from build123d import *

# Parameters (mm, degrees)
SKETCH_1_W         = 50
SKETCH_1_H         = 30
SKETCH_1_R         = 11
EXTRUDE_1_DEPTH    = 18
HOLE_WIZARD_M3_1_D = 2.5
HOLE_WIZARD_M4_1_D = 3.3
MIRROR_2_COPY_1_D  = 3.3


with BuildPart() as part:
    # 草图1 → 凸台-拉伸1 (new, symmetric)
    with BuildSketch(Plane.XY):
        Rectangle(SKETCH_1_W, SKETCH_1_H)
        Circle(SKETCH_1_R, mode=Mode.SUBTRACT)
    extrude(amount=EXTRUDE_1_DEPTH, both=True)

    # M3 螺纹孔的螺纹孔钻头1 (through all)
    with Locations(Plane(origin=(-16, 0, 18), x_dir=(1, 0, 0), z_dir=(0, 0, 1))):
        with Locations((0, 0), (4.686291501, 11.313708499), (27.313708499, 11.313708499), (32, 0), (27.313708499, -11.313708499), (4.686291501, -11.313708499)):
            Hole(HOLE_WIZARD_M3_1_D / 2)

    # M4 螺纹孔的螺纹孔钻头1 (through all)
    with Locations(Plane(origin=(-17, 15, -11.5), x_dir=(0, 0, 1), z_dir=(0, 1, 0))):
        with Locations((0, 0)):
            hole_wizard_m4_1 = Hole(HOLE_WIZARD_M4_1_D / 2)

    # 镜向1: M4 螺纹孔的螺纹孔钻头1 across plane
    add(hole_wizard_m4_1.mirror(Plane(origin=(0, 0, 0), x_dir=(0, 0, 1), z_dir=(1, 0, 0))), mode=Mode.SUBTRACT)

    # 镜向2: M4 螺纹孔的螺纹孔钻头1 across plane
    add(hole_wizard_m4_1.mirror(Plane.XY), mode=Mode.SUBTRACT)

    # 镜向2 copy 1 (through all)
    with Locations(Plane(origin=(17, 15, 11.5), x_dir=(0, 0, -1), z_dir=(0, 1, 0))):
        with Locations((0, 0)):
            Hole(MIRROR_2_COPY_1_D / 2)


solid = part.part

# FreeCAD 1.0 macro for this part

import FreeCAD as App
import Part
import Sketcher

V = App.Vector
Q = App.Units.Quantity

doc = App.newDocument("Part")
params = doc.addObject("Spreadsheet::Sheet", "Params")
for row, (alias, value) in enumerate([
    ("sketch1_diameter", "22 mm"),
    ("sketch1_width", "50 mm"),
    ("sketch1_height", "30 mm"),
    ("pad1_length", "36 mm"),
    ("sketch2_diameter", "2.5 mm"),
    ("hole_diameter", "2.5 mm"),
    ("sketch3_diameter", "3.3 mm"),
    ("hole2_diameter", "3.3 mm"),
    ("sketch4_diameter", "3.3 mm"),
    ("hole3_diameter", "3.3 mm"),
], start=1):
    params.set(f"A{row}", alias)
    params.set(f"B{row}", "=" + value)
    params.setAlias(f"B{row}", alias)

body = doc.addObject("PartDesign::Body", "Body")

# Sketch on XY plane
sketch1 = doc.addObject("Sketcher::SketchObject", "Sketch")
body.addObject(sketch1)
sketch1.AttachmentSupport = (doc.XY_Plane, [""])
sketch1.MapMode = "FlatFace"
sketch1.addGeometry([
    Part.LineSegment(V(-25, 15, 0), V(-25, -15, 0)),  # 0
    Part.LineSegment(V(-25, -15, 0), V(25, -15, 0)),  # 1
    Part.LineSegment(V(25, -15, 0), V(25, 15, 0)),  # 2
    Part.LineSegment(V(25, 15, 0), V(-25, 15, 0)),  # 3
    Part.Circle(V(0, 0, 0), V(0, 0, 1), 11),  # 4
], False)
sketch1.addConstraint([
    Sketcher.Constraint("Coincident", 0, 2, 1, 1),
    Sketcher.Constraint("Coincident", 1, 2, 2, 1),
    Sketcher.Constraint("Coincident", 2, 2, 3, 1),
    Sketcher.Constraint("Coincident", 3, 2, 0, 1),
    Sketcher.Constraint("Vertical", 0),
    Sketcher.Constraint("Horizontal", 1),
    Sketcher.Constraint("Vertical", 2),
    Sketcher.Constraint("Horizontal", 3),
    Sketcher.Constraint("Coincident", 4, 3, -1, 1),
    Sketcher.Constraint("Symmetric", 0, 2, 2, 2, -1, 1),
    Sketcher.Constraint("Diameter", 4, Q("22 mm")),
    Sketcher.Constraint("DistanceX", 1, 1, 1, 2, Q("50 mm")),
    Sketcher.Constraint("DistanceY", 0, 2, 0, 1, Q("30 mm")),
])
sketch1.setExpression("Constraints[10]", "Params.sketch1_diameter")
sketch1.setExpression("Constraints[11]", "Params.sketch1_width")
sketch1.setExpression("Constraints[12]", "Params.sketch1_height")
pad1 = doc.addObject("PartDesign::Pad", "Pad")
body.addObject(pad1)
pad1.Profile = sketch1
pad1.setExpression("Length", "Params.pad1_length")
pad1.Midplane = True

# Sketch on XY plane
sketch2 = doc.addObject("Sketcher::SketchObject", "Sketch001")
body.addObject(sketch2)
sketch2.AttachmentSupport = (doc.XY_Plane, [""])
sketch2.MapMode = "FlatFace"
sketch2.AttachmentOffset = App.Placement(V(0, 0, 18), App.Rotation())
sketch2.addGeometry([
    Part.Circle(V(-16, 0, 0), V(0, 0, 1), 1.2),  # 0
    Part.Circle(V(-11.3, 11.3, 0), V(0, 0, 1), 1.2),  # 1
    Part.Circle(V(11.3, 11.3, 0), V(0, 0, 1), 1.2),  # 2
    Part.Circle(V(16, 0, 0), V(0, 0, 1), 1.2),  # 3
    Part.Circle(V(11.3, -11.3, 0), V(0, 0, 1), 1.2),  # 4
    Part.Circle(V(-11.3, -11.3, 0), V(0, 0, 1), 1.2),  # 5
], False)
sketch2.addConstraint([
    Sketcher.Constraint("Equal", 0, 1),
    Sketcher.Constraint("Equal", 1, 2),
    Sketcher.Constraint("Equal", 2, 3),
    Sketcher.Constraint("Equal", 3, 4),
    Sketcher.Constraint("Equal", 4, 5),
    Sketcher.Constraint("Symmetric", 0, 3, 3, 3, -1, 1),
    Sketcher.Constraint("Symmetric", 1, 3, 4, 3, -1, 1),
    Sketcher.Constraint("Symmetric", 2, 3, 5, 3, -1, 1),
    Sketcher.Constraint("Symmetric", 1, 3, 2, 3, -2),
    Sketcher.Constraint("PointOnObject", 0, 3, -1),
    Sketcher.Constraint("Diameter", 0, Q("2.5 mm")),
    Sketcher.Constraint("DistanceX", 0, 3, -1, 1, Q("16 mm")),
    Sketcher.Constraint("DistanceX", 1, 3, -1, 1, Q("11.313708 mm")),
    Sketcher.Constraint("DistanceY", -1, 1, 1, 3, Q("11.313708 mm")),
])
sketch2.setExpression("Constraints[10]", "Params.sketch2_diameter")
doc.recompute()
hole = doc.addObject("PartDesign::Hole", "Hole")
body.addObject(hole)
hole.Profile = sketch2
hole.ThreadType = "None"
hole.setExpression("Diameter", "Params.hole_diameter")
hole.DepthType = "ThroughAll"

# Sketch on XZ plane
sketch3 = doc.addObject("Sketcher::SketchObject", "Sketch002")
body.addObject(sketch3)
sketch3.AttachmentSupport = (doc.XZ_Plane, [""])
sketch3.MapMode = "FlatFace"
sketch3.AttachmentOffset = App.Placement(V(0, 0, -15), App.Rotation())
sketch3.addGeometry(Part.Circle(V(-17, -11.5, 0), V(0, 0, 1), 1.6), False)
sketch3.addConstraint([
    Sketcher.Constraint("Diameter", 0, Q("3.3 mm")),
    Sketcher.Constraint("DistanceX", 0, 3, -1, 1, Q("17 mm")),
    Sketcher.Constraint("DistanceY", 0, 3, -1, 1, Q("11.5 mm")),
])
sketch3.setExpression("Constraints[0]", "Params.sketch3_diameter")
doc.recompute()
hole2 = doc.addObject("PartDesign::Hole", "Hole001")
body.addObject(hole2)
hole2.Profile = sketch3
hole2.ThreadType = "None"
hole2.setExpression("Diameter", "Params.hole2_diameter")
hole2.DepthType = "ThroughAll"
hole2.Reversed = True
doc.recompute()

mirrored = doc.addObject("PartDesign::Mirrored", "Mirrored")
body.addObject(mirrored)
mirrored.Originals = [hole2]
mirrored.MirrorPlane = (doc.YZ_Plane, [""])
body.Tip = mirrored
doc.recompute()

mirrored2 = doc.addObject("PartDesign::Mirrored", "Mirrored001")
body.addObject(mirrored2)
mirrored2.Originals = [hole2]
mirrored2.MirrorPlane = (doc.XY_Plane, [""])
body.Tip = mirrored2

# Sketch on XZ plane
sketch4 = doc.addObject("Sketcher::SketchObject", "Sketch003")
body.addObject(sketch4)
sketch4.AttachmentSupport = (doc.XZ_Plane, [""])
sketch4.MapMode = "FlatFace"
sketch4.AttachmentOffset = App.Placement(V(0, 0, -15), App.Rotation())
sketch4.addGeometry(Part.Circle(V(17, 11.5, 0), V(0, 0, 1), 1.6), False)
sketch4.addConstraint([
    Sketcher.Constraint("Diameter", 0, Q("3.3 mm")),
    Sketcher.Constraint("DistanceX", -1, 1, 0, 3, Q("17 mm")),
    Sketcher.Constraint("DistanceY", -1, 1, 0, 3, Q("11.5 mm")),
])
sketch4.setExpression("Constraints[0]", "Params.sketch4_diameter")
doc.recompute()
hole3 = doc.addObject("PartDesign::Hole", "Hole002")
body.addObject(hole3)
hole3.Profile = sketch4
hole3.ThreadType = "None"
hole3.setExpression("Diameter", "Params.hole3_diameter")
hole3.DepthType = "ThroughAll"
hole3.Reversed = True

doc.recompute()
